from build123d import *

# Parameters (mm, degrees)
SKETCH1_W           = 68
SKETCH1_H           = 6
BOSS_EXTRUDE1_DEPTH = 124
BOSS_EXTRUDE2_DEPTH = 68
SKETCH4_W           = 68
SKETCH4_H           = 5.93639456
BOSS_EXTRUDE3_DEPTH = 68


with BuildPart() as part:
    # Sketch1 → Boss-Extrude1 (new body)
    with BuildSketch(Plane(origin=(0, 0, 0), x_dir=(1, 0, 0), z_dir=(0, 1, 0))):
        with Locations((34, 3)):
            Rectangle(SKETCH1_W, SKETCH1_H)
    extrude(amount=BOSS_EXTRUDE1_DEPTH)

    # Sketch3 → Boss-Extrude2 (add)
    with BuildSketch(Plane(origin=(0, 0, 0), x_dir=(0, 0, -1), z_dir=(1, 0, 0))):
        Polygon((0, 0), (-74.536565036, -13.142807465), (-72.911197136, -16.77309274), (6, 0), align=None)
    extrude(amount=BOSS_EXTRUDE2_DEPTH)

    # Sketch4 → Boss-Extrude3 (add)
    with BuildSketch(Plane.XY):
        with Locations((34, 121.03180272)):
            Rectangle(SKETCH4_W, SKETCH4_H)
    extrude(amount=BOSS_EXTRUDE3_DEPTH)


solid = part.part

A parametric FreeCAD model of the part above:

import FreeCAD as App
import Part
import Sketcher
from FreeCAD import Vector
Q = App.Units.Quantity

doc = App.newDocument("Part")
body = doc.addObject("PartDesign::Body", "Body")

sketch1 = doc.addObject("Sketcher::SketchObject", "Sketch")
body.addObject(sketch1)
sketch1.AttachmentSupport = (doc.XZ_Plane, [""])
sketch1.MapMode = "FlatFace"
sketch1.addGeometry(Part.LineSegment(Vector(0, -6, 0), Vector(0, 0, 0)), False)
sketch1.addGeometry(Part.LineSegment(Vector(0, 0, 0), Vector(68, 0, 0)), False)
sketch1.addGeometry(Part.LineSegment(Vector(68, 0, 0), Vector(68, -6, 0)), False)
sketch1.addGeometry(Part.LineSegment(Vector(68, -6, 0), Vector(0, -6, 0)), False)
sketch1.addConstraint(Sketcher.Constraint("Coincident", 0, 2, 1, 1))
sketch1.addConstraint(Sketcher.Constraint("Coincident", 1, 2, 2, 1))
sketch1.addConstraint(Sketcher.Constraint("Coincident", 2, 2, 3, 1))
sketch1.addConstraint(Sketcher.Constraint("Coincident", 3, 2, 0, 1))
sketch1.addConstraint(Sketcher.Constraint("Vertical", 0))
sketch1.addConstraint(Sketcher.Constraint("Horizontal", 1))
sketch1.addConstraint(Sketcher.Constraint("Vertical", 2))
sketch1.addConstraint(Sketcher.Constraint("Horizontal", 3))
sketch1.addConstraint(Sketcher.Constraint("Coincident", 0, 2, -1, 1))
sketch1.addConstraint(Sketcher.Constraint("DistanceX", 1, 1, 1, 2, Q("68 mm")))
sketch1.addConstraint(Sketcher.Constraint("DistanceY", 0, 1, 0, 2, Q("6 mm")))
pad1 = doc.addObject("PartDesign::Pad", "Pad")
body.addObject(pad1)
pad1.Profile = sketch1
pad1.Length = 124
pad1.Reversed = True

sketch2 = doc.addObject("Sketcher::SketchObject", "Sketch001")
body.addObject(sketch2)
sketch2.AttachmentSupport = (doc.YZ_Plane, [""])
sketch2.MapMode = "FlatFace"
sketch2.addGeometry(Part.LineSegment(Vector(0, 0, 0), Vector(-13.1, 74.5, 0)), False)
sketch2.addGeometry(Part.LineSegment(Vector(-13.1, 74.5, 0), Vector(-16.8, 72.9, 0)), False)
sketch2.addGeometry(Part.LineSegment(Vector(-16.8, 72.9, 0), Vector(0, -6, 0)), False)
sketch2.addGeometry(Part.LineSegment(Vector(0, -6, 0), Vector(0, 0, 0)), False)
sketch2.addConstraint(Sketcher.Constraint("Coincident", 0, 2, 1, 1))
sketch2.addConstraint(Sketcher.Constraint("Coincident", 1, 2, 2, 1))
sketch2.addConstraint(Sketcher.Constraint("Coincident", 2, 2, 3, 1))
sketch2.addConstraint(Sketcher.Constraint("Coincident", 3, 2, 0, 1))
sketch2.addConstraint(Sketcher.Constraint("Vertical", 3))
sketch2.addConstraint(Sketcher.Constraint("Coincident", 3, 2, -1, 1))
sketch2.addConstraint(Sketcher.Constraint("DistanceY", 3, 1, 3, 2, Q("6 mm")))
sketch2.addConstraint(Sketcher.Constraint("Angle", 0, Q("100 deg")))
sketch2.addConstraint(Sketcher.Constraint("Angle", 2, Q("-78 deg")))
sketch2.addConstraint(Sketcher.Constraint("Distance", 0, Q("75.686412 mm")))
sketch2.addConstraint(Sketcher.Constraint("Distance", 2, Q("80.67412 mm")))
pad2 = doc.addObject("PartDesign::Pad", "Pad001")
body.addObject(pad2)
pad2.Profile = sketch2
pad2.Length = 68

sketch3 = doc.addObject("Sketcher::SketchObject", "Sketch002")
body.addObject(sketch3)
sketch3.AttachmentSupport = (doc.XY_Plane, [""])
sketch3.MapMode = "FlatFace"
sketch3.addGeometry(Part.LineSegment(Vector(0, 124, 0), Vector(0, 118, 0)), False)
sketch3.addGeometry(Part.LineSegment(Vector(0, 118, 0), Vector(68, 118, 0)), False)
sketch3.addGeometry(Part.LineSegment(Vector(68, 118, 0), Vector(68, 124, 0)), False)
sketch3.addGeometry(Part.LineSegment(Vector(68, 124, 0), Vector(0, 124, 0)), False)
sketch3.addConstraint(Sketcher.Constraint("Coincident", 0, 2, 1, 1))
sketch3.addConstraint(Sketcher.Constraint("Coincident", 1, 2, 2, 1))
sketch3.addConstraint(Sketcher.Constraint("Coincident", 2, 2, 3, 1))
sketch3.addConstraint(Sketcher.Constraint("Coincident", 3, 2, 0, 1))
sketch3.addConstraint(Sketcher.Constraint("Vertical", 0))
sketch3.addConstraint(Sketcher.Constraint("Horizontal", 1))
sketch3.addConstraint(Sketcher.Constraint("Vertical", 2))
sketch3.addConstraint(Sketcher.Constraint("Horizontal", 3))
sketch3.addConstraint(Sketcher.Constraint("PointOnObject", 0, 2, -2))
sketch3.addConstraint(Sketcher.Constraint("DistanceX", 1, 1, 1, 2, Q("68 mm")))
sketch3.addConstraint(Sketcher.Constraint("DistanceY", -1, 1, 2, 2, Q("124 mm")))
sketch3.addConstraint(Sketcher.Constraint("DistanceY", 0, 2, 0, 1, Q("5.936395 mm")))
pad3 = doc.addObject("PartDesign::Pad", "Pad002")
body.addObject(pad3)
pad3.Profile = sketch3
pad3.Length = 68

doc.recompute()
